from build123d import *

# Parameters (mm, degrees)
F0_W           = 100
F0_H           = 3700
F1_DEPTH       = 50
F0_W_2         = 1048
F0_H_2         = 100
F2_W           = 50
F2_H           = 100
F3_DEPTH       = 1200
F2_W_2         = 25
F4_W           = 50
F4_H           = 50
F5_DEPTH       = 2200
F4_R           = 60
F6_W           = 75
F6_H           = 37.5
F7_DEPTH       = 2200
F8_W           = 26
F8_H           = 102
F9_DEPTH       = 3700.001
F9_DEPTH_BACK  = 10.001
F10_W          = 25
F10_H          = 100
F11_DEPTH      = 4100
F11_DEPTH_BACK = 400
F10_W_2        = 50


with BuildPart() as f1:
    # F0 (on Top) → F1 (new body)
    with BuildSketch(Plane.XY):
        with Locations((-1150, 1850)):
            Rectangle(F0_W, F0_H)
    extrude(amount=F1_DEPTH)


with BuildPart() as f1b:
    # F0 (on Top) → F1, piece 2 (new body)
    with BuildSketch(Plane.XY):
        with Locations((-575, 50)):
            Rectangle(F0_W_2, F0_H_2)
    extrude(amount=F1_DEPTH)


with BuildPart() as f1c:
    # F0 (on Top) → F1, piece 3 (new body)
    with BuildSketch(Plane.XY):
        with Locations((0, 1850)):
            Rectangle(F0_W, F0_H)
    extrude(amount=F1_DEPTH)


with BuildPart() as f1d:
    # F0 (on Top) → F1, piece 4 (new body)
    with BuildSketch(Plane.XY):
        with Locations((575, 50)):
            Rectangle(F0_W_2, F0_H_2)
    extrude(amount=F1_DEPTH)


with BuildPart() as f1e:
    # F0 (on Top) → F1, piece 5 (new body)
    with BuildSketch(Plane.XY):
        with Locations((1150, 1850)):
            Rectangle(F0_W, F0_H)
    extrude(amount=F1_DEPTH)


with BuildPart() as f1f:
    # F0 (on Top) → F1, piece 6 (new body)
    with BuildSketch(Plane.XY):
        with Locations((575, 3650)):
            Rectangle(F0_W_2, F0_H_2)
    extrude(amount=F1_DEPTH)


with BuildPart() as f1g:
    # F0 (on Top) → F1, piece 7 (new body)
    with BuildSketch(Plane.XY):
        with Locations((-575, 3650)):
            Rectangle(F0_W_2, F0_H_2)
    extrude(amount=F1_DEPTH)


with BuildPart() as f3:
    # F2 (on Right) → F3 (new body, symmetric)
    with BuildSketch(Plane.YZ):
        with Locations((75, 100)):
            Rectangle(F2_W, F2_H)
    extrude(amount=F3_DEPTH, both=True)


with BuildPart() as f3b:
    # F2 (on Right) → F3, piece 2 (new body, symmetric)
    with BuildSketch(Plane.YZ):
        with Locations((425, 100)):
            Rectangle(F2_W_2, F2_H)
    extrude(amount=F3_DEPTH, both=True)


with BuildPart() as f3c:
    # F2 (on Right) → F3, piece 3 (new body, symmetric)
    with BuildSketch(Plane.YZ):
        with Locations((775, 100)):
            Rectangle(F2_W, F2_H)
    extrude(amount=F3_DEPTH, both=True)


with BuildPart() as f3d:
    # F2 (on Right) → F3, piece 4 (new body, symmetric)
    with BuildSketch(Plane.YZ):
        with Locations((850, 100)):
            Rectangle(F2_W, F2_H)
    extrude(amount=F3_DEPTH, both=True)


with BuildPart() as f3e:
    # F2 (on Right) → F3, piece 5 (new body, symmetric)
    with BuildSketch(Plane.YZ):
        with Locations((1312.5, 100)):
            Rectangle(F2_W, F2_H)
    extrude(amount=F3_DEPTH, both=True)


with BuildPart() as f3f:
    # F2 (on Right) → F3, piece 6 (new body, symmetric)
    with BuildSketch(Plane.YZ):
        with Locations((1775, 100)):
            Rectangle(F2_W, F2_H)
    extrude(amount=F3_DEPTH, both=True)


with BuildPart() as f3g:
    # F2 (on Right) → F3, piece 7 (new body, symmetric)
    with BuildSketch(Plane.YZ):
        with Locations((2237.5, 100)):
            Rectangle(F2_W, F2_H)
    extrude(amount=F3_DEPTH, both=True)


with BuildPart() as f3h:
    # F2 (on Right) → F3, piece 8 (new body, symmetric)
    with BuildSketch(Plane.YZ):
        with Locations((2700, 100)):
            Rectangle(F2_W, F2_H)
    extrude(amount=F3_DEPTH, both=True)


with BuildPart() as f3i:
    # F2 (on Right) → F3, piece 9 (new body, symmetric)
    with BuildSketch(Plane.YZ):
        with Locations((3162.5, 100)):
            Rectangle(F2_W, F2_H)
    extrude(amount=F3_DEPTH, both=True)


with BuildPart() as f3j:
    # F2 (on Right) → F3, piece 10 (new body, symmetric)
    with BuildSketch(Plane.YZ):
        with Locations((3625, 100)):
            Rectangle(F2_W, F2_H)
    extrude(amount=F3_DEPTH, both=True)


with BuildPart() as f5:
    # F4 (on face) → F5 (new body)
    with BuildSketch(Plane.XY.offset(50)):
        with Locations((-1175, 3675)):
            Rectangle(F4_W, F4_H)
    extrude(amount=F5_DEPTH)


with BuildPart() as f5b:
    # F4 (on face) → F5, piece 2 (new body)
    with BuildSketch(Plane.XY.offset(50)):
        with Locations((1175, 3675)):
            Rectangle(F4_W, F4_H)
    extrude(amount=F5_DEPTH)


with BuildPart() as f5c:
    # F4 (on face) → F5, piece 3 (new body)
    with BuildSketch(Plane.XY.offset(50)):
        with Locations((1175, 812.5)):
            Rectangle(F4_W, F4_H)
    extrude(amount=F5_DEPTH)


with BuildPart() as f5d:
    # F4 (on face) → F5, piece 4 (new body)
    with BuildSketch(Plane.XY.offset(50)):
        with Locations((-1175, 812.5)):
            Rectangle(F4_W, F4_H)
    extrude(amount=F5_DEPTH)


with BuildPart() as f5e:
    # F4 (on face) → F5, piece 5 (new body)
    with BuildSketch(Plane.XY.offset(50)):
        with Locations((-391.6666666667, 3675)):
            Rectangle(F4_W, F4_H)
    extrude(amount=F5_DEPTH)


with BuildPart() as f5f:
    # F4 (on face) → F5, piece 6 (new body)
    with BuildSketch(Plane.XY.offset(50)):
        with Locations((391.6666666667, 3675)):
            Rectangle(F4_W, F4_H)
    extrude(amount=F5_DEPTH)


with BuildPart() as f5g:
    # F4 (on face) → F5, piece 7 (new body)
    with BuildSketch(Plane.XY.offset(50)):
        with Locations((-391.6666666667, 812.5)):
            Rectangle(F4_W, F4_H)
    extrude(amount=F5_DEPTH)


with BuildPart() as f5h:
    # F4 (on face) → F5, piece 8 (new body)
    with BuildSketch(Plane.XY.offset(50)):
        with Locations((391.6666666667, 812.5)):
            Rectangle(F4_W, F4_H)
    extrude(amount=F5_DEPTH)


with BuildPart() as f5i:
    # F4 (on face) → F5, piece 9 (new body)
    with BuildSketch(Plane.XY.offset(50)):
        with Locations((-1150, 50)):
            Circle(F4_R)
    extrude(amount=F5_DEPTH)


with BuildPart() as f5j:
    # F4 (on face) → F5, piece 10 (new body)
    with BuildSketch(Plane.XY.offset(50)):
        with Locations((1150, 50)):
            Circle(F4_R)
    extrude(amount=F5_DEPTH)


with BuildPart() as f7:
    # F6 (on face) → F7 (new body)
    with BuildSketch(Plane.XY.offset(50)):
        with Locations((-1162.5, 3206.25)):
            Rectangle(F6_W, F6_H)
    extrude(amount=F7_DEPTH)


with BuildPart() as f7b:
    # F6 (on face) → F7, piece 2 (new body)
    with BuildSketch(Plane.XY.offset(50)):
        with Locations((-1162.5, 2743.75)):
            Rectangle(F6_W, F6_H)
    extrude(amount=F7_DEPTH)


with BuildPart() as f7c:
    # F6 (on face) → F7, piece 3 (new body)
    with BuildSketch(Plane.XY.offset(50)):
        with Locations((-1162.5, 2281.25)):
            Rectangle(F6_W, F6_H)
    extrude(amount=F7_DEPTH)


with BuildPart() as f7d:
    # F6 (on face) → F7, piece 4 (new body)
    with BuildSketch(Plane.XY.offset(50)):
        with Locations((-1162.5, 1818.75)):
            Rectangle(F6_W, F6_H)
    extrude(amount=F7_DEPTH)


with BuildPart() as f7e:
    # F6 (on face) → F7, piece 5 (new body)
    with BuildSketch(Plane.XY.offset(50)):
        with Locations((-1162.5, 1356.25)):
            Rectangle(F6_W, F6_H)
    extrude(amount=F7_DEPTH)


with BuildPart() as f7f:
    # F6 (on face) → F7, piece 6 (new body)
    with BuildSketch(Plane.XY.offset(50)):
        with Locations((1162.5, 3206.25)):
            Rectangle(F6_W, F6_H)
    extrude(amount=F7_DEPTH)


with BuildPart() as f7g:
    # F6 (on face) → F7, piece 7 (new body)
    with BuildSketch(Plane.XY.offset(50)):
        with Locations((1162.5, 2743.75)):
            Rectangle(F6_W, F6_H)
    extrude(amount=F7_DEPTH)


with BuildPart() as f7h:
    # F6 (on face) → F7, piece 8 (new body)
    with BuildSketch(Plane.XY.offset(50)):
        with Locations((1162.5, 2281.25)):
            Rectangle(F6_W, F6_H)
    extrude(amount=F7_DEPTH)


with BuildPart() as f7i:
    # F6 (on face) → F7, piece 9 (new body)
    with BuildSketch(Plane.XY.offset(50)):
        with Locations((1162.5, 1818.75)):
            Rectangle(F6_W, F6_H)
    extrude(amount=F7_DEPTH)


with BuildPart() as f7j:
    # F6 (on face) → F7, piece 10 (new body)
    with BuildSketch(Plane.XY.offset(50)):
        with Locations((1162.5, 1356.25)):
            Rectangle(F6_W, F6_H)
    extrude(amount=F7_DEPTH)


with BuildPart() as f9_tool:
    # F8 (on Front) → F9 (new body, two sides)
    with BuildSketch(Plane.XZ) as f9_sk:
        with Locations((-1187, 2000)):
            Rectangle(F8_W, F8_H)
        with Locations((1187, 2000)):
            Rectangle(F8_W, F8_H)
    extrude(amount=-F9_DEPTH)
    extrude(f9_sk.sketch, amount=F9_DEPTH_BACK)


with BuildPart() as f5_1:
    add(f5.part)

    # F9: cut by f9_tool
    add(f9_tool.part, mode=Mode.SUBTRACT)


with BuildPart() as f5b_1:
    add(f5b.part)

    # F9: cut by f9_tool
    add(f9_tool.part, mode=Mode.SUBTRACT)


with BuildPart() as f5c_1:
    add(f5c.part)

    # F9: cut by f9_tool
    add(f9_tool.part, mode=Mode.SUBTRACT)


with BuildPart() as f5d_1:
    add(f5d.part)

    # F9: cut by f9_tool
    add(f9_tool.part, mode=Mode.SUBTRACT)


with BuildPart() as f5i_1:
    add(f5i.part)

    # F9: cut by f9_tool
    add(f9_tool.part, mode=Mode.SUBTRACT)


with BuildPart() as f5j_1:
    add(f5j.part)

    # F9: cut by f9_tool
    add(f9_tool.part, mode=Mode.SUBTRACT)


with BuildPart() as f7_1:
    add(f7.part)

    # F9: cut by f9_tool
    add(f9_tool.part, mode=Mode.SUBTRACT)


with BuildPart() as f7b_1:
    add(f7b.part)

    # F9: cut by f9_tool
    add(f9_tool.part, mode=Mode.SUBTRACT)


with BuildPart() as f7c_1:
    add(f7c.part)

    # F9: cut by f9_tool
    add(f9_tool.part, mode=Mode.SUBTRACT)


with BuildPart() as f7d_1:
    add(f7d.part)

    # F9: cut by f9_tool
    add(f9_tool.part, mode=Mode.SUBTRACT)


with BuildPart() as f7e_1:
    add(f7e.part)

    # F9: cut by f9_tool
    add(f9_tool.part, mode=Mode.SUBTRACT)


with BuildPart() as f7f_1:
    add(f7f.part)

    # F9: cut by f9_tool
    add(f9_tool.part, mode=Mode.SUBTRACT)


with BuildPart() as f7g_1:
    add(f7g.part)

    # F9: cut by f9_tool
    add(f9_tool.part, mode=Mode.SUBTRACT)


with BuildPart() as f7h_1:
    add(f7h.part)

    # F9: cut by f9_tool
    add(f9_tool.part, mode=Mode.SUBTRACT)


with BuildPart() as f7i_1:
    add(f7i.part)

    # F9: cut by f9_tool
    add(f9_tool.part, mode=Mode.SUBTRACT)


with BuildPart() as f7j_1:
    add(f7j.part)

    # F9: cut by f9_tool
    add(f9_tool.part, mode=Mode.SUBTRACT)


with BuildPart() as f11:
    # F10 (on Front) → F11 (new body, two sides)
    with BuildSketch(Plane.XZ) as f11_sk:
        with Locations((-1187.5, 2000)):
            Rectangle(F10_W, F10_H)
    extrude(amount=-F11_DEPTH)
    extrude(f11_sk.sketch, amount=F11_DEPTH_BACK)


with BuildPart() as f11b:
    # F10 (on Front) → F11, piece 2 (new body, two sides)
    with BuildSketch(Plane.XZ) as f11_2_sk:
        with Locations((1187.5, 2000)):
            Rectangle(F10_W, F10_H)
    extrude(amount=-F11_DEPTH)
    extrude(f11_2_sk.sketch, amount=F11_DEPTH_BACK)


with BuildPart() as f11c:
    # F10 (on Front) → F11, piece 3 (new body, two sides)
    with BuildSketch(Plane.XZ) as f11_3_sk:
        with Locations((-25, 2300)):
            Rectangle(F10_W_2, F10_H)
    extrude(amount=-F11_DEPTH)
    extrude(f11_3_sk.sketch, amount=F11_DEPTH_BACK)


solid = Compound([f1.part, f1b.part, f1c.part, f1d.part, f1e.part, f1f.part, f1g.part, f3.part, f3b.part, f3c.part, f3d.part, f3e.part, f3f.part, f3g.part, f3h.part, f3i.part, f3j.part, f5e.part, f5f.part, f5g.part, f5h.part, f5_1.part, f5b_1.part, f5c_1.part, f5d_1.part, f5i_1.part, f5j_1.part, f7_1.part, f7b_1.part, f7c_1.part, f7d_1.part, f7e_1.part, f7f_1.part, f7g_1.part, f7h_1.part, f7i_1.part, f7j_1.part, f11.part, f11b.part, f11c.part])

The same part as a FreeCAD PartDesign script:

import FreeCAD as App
import Part
import Sketcher

V = App.Vector


def add_polygon(sketch, points):
    """Adds a closed chain of lines whose ends are joined by coincident constraints."""
    first, n = sketch.GeometryCount, len(points)
    for a, b in zip(points, points[1:] + points[:1]):
        sketch.addGeometry(Part.LineSegment(App.Vector(*a, 0), App.Vector(*b, 0)), False)
    for i in range(n):
        sketch.addConstraint(Sketcher.Constraint("Coincident", first + i, 2, first + (i + 1) % n, 1))

doc = App.newDocument("Part")
body = doc.addObject("PartDesign::Body", "Body")

# Sketch on XY plane
sketch1 = doc.addObject("Sketcher::SketchObject", "Sketch")
body.addObject(sketch1)
sketch1.AttachmentSupport = (doc.XY_Plane, [""])
sketch1.MapMode = "FlatFace"
add_polygon(sketch1, [(-1200, 3700), (-1200, 0), (-1100, 0), (-1100, 3700)])  # lines 0-3
sketch1.addConstraint([
    Sketcher.Constraint("Vertical", 0),
    Sketcher.Constraint("Horizontal", 1),
    Sketcher.Constraint("Vertical", 2),
    Sketcher.Constraint("Horizontal", 3),
    Sketcher.Constraint("PointOnObject", 0, 2, -1),
    Sketcher.Constraint("DistanceX", 1, 1, 1, 2, 100.0),
    Sketcher.Constraint("DistanceY", 0, 2, 0, 1, 3700.0),
    Sketcher.Constraint("DistanceX", 0, 2, -1, 1, 1200.0),
])
pad1 = doc.addObject("PartDesign::Pad", "Pad")
body.addObject(pad1)
pad1.Profile = sketch1
pad1.Length = 50
body2 = doc.addObject("PartDesign::Body", "Body001")

# Sketch on XY plane
sketch2 = doc.addObject("Sketcher::SketchObject", "Sketch001")
body2.addObject(sketch2)
sketch2.AttachmentSupport = (doc.getObject("XY_Plane001"), [""])
sketch2.MapMode = "FlatFace"
add_polygon(sketch2, [(-1099, 100), (-1099, 0), (-51, 0), (-51, 100)])  # lines 0-3
sketch2.addConstraint([
    Sketcher.Constraint("Vertical", 0),
    Sketcher.Constraint("Horizontal", 1),
    Sketcher.Constraint("Vertical", 2),
    Sketcher.Constraint("Horizontal", 3),
    Sketcher.Constraint("PointOnObject", 0, 2, -1),
    Sketcher.Constraint("DistanceX", 1, 1, 1, 2, 1048.0),
    Sketcher.Constraint("DistanceY", 0, 2, 0, 1, 100.0),
    Sketcher.Constraint("DistanceX", 0, 2, -1, 1, 1099.0),
])
pad2 = doc.addObject("PartDesign::Pad", "Pad001")
body2.addObject(pad2)
pad2.Profile = sketch2
pad2.Length = 50
body3 = doc.addObject("PartDesign::Body", "Body002")

# Sketch on XY plane
sketch3 = doc.addObject("Sketcher::SketchObject", "Sketch002")
body3.addObject(sketch3)
sketch3.AttachmentSupport = (doc.getObject("XY_Plane002"), [""])
sketch3.MapMode = "FlatFace"
add_polygon(sketch3, [(-50, 3700), (-50, 0), (50, 0), (50, 3700)])  # lines 0-3
sketch3.addConstraint([
    Sketcher.Constraint("Vertical", 0),
    Sketcher.Constraint("Horizontal", 1),
    Sketcher.Constraint("Vertical", 2),
    Sketcher.Constraint("Horizontal", 3),
    Sketcher.Constraint("Symmetric", 0, 2, 1, 2, -1, 1),
    Sketcher.Constraint("DistanceX", 1, 1, 1, 2, 100.0),
    Sketcher.Constraint("DistanceY", 0, 2, 0, 1, 3700.0),
])
pad3 = doc.addObject("PartDesign::Pad", "Pad002")
body3.addObject(pad3)
pad3.Profile = sketch3
pad3.Length = 50
body4 = doc.addObject("PartDesign::Body", "Body003")

# Sketch on XY plane
sketch4 = doc.addObject("Sketcher::SketchObject", "Sketch003")
body4.addObject(sketch4)
sketch4.AttachmentSupport = (doc.getObject("XY_Plane003"), [""])
sketch4.MapMode = "FlatFace"
add_polygon(sketch4, [(51, 100), (51, 0), (1099, 0), (1099, 100)])  # lines 0-3
sketch4.addConstraint([
    Sketcher.Constraint("Vertical", 0),
    Sketcher.Constraint("Horizontal", 1),
    Sketcher.Constraint("Vertical", 2),
    Sketcher.Constraint("Horizontal", 3),
    Sketcher.Constraint("PointOnObject", 0, 2, -1),
    Sketcher.Constraint("DistanceX", 1, 1, 1, 2, 1048.0),
    Sketcher.Constraint("DistanceY", 0, 2, 0, 1, 100.0),
    Sketcher.Constraint("DistanceX", -1, 1, 0, 2, 51.0),
])
pad4 = doc.addObject("PartDesign::Pad", "Pad003")
body4.addObject(pad4)
pad4.Profile = sketch4
pad4.Length = 50
body5 = doc.addObject("PartDesign::Body", "Body004")

# Sketch on XY plane
sketch5 = doc.addObject("Sketcher::SketchObject", "Sketch004")
body5.addObject(sketch5)
sketch5.AttachmentSupport = (doc.getObject("XY_Plane004"), [""])
sketch5.MapMode = "FlatFace"
add_polygon(sketch5, [(1100, 3700), (1100, 0), (1200, 0), (1200, 3700)])  # lines 0-3
sketch5.addConstraint([
    Sketcher.Constraint("Vertical", 0),
    Sketcher.Constraint("Horizontal", 1),
    Sketcher.Constraint("Vertical", 2),
    Sketcher.Constraint("Horizontal", 3),
    Sketcher.Constraint("PointOnObject", 0, 2, -1),
    Sketcher.Constraint("DistanceX", 1, 1, 1, 2, 100.0),
    Sketcher.Constraint("DistanceY", 0, 2, 0, 1, 3700.0),
    Sketcher.Constraint("DistanceX", -1, 1, 0, 2, 1100.0),
])
pad5 = doc.addObject("PartDesign::Pad", "Pad004")
body5.addObject(pad5)
pad5.Profile = sketch5
pad5.Length = 50
body6 = doc.addObject("PartDesign::Body", "Body005")

# Sketch on XY plane
sketch6 = doc.addObject("Sketcher::SketchObject", "Sketch005")
body6.addObject(sketch6)
sketch6.AttachmentSupport = (doc.getObject("XY_Plane005"), [""])
sketch6.MapMode = "FlatFace"
add_polygon(sketch6, [(51, 3700), (51, 3600), (1099, 3600), (1099, 3700)])  # lines 0-3
sketch6.addConstraint([
    Sketcher.Constraint("Vertical", 0),
    Sketcher.Constraint("Horizontal", 1),
    Sketcher.Constraint("Vertical", 2),
    Sketcher.Constraint("Horizontal", 3),
    Sketcher.Constraint("DistanceX", 1, 1, 1, 2, 1048.0),
    Sketcher.Constraint("DistanceY", 0, 2, 0, 1, 100.0),
    Sketcher.Constraint("DistanceX", -1, 1, 0, 2, 51.0),
    Sketcher.Constraint("DistanceY", -1, 1, 0, 2, 3600.0),
])
pad6 = doc.addObject("PartDesign::Pad", "Pad005")
body6.addObject(pad6)
pad6.Profile = sketch6
pad6.Length = 50
body7 = doc.addObject("PartDesign::Body", "Body006")

# Sketch on XY plane
sketch7 = doc.addObject("Sketcher::SketchObject", "Sketch006")
body7.addObject(sketch7)
sketch7.AttachmentSupport = (doc.getObject("XY_Plane006"), [""])
sketch7.MapMode = "FlatFace"
add_polygon(sketch7, [(-1099, 3700), (-1099, 3600), (-51, 3600), (-51, 3700)])  # lines 0-3
sketch7.addConstraint([
    Sketcher.Constraint("Vertical", 0),
    Sketcher.Constraint("Horizontal", 1),
    Sketcher.Constraint("Vertical", 2),
    Sketcher.Constraint("Horizontal", 3),
    Sketcher.Constraint("DistanceX", 1, 1, 1, 2, 1048.0),
    Sketcher.Constraint("DistanceY", 0, 2, 0, 1, 100.0),
    Sketcher.Constraint("DistanceX", 0, 2, -1, 1, 1099.0),
    Sketcher.Constraint("DistanceY", -1, 1, 0, 2, 3600.0),
])
pad7 = doc.addObject("PartDesign::Pad", "Pad006")
body7.addObject(pad7)
pad7.Profile = sketch7
pad7.Length = 50
body8 = doc.addObject("PartDesign::Body", "Body007")

# Sketch on YZ plane
sketch8 = doc.addObject("Sketcher::SketchObject", "Sketch007")
body8.addObject(sketch8)
sketch8.AttachmentSupport = (doc.getObject("YZ_Plane007"), [""])
sketch8.MapMode = "FlatFace"
add_polygon(sketch8, [(50, 150), (50, 50), (100, 50), (100, 150)])  # lines 0-3
sketch8.addConstraint([
    Sketcher.Constraint("Vertical", 0),
    Sketcher.Constraint("Horizontal", 1),
    Sketcher.Constraint("Vertical", 2),
    Sketcher.Constraint("Horizontal", 3),
    Sketcher.Constraint("DistanceX", 1, 1, 1, 2, 50.0),
    Sketcher.Constraint("DistanceY", 0, 2, 0, 1, 100.0),
    Sketcher.Constraint("DistanceX", -1, 1, 0, 2, 50.0),
    Sketcher.Constraint("DistanceY", -1, 1, 0, 2, 50.0),
])
pad8 = doc.addObject("PartDesign::Pad", "Pad007")
body8.addObject(pad8)
pad8.Profile = sketch8
pad8.Length = 2400
pad8.Midplane = True
body9 = doc.addObject("PartDesign::Body", "Body008")

# Sketch on YZ plane
sketch9 = doc.addObject("Sketcher::SketchObject", "Sketch008")
body9.addObject(sketch9)
sketch9.AttachmentSupport = (doc.getObject("YZ_Plane008"), [""])
sketch9.MapMode = "FlatFace"
add_polygon(sketch9, [(412, 150), (412, 50), (438, 50), (438, 150)])  # lines 0-3
sketch9.addConstraint([
    Sketcher.Constraint("Vertical", 0),
    Sketcher.Constraint("Horizontal", 1),
    Sketcher.Constraint("Vertical", 2),
    Sketcher.Constraint("Horizontal", 3),
    Sketcher.Constraint("DistanceX", 1, 1, 1, 2, 25.0),
    Sketcher.Constraint("DistanceY", 0, 2, 0, 1, 100.0),
    Sketcher.Constraint("DistanceY", -1, 1, 0, 2, 50.0),
    Sketcher.Constraint("DistanceX", -1, 1, 0, 2, 412.5),
])
pad9 = doc.addObject("PartDesign::Pad", "Pad008")
body9.addObject(pad9)
pad9.Profile = sketch9
pad9.Length = 2400
pad9.Midplane = True
body10 = doc.addObject("PartDesign::Body", "Body009")

# Sketch on YZ plane
sketch10 = doc.addObject("Sketcher::SketchObject", "Sketch009")
body10.addObject(sketch10)
sketch10.AttachmentSupport = (doc.getObject("YZ_Plane009"), [""])
sketch10.MapMode = "FlatFace"
add_polygon(sketch10, [(750, 150), (750, 50), (800, 50), (800, 150)])  # lines 0-3
sketch10.addConstraint([
    Sketcher.Constraint("Vertical", 0),
    Sketcher.Constraint("Horizontal", 1),
    Sketcher.Constraint("Vertical", 2),
    Sketcher.Constraint("Horizontal", 3),
    Sketcher.Constraint("DistanceX", 1, 1, 1, 2, 50.0),
    Sketcher.Constraint("DistanceY", 0, 2, 0, 1, 100.0),
    Sketcher.Constraint("DistanceX", -1, 1, 0, 2, 750.0),
    Sketcher.Constraint("DistanceY", -1, 1, 0, 2, 50.0),
])
pad10 = doc.addObject("PartDesign::Pad", "Pad009")
body10.addObject(pad10)
pad10.Profile = sketch10
pad10.Length = 2400
pad10.Midplane = True
body11 = doc.addObject("PartDesign::Body", "Body010")

# Sketch on YZ plane
sketch11 = doc.addObject("Sketcher::SketchObject", "Sketch010")
body11.addObject(sketch11)
sketch11.AttachmentSupport = (doc.getObject("YZ_Plane010"), [""])
sketch11.MapMode = "FlatFace"
add_polygon(sketch11, [(825, 150), (825, 50), (875, 50), (875, 150)])  # lines 0-3
sketch11.addConstraint([
    Sketcher.Constraint("Vertical", 0),
    Sketcher.Constraint("Horizontal", 1),
    Sketcher.Constraint("Vertical", 2),
    Sketcher.Constraint("Horizontal", 3),
    Sketcher.Constraint("DistanceX", 1, 1, 1, 2, 50.0),
    Sketcher.Constraint("DistanceY", 0, 2, 0, 1, 100.0),
    Sketcher.Constraint("DistanceX", -1, 1, 0, 2, 825.0),
    Sketcher.Constraint("DistanceY", -1, 1, 0, 2, 50.0),
])
pad11 = doc.addObject("PartDesign::Pad", "Pad010")
body11.addObject(pad11)
pad11.Profile = sketch11
pad11.Length = 2400
pad11.Midplane = True
body12 = doc.addObject("PartDesign::Body", "Body011")

# Sketch on YZ plane
sketch12 = doc.addObject("Sketcher::SketchObject", "Sketch011")
body12.addObject(sketch12)
sketch12.AttachmentSupport = (doc.getObject("YZ_Plane011"), [""])
sketch12.MapMode = "FlatFace"
add_polygon(sketch12, [(1288, 150), (1288, 50), (1338, 50), (1338, 150)])  # lines 0-3
sketch12.addConstraint([
    Sketcher.Constraint("Vertical", 0),
    Sketcher.Constraint("Horizontal", 1),
    Sketcher.Constraint("Vertical", 2),
    Sketcher.Constraint("Horizontal", 3),
    Sketcher.Constraint("DistanceX", 1, 1, 1, 2, 50.0),
    Sketcher.Constraint("DistanceY", 0, 2, 0, 1, 100.0),
    Sketcher.Constraint("DistanceY", -1, 1, 0, 2, 50.0),
    Sketcher.Constraint("DistanceX", -1, 1, 0, 2, 1287.5),
])
pad12 = doc.addObject("PartDesign::Pad", "Pad011")
body12.addObject(pad12)
pad12.Profile = sketch12
pad12.Length = 2400
pad12.Midplane = True
body13 = doc.addObject("PartDesign::Body", "Body012")

# Sketch on YZ plane
sketch13 = doc.addObject("Sketcher::SketchObject", "Sketch012")
body13.addObject(sketch13)
sketch13.AttachmentSupport = (doc.getObject("YZ_Plane012"), [""])
sketch13.MapMode = "FlatFace"
add_polygon(sketch13, [(1750, 150), (1750, 50), (1800, 50), (1800, 150)])  # lines 0-3
sketch13.addConstraint([
    Sketcher.Constraint("Vertical", 0),
    Sketcher.Constraint("Horizontal", 1),
    Sketcher.Constraint("Vertical", 2),
    Sketcher.Constraint("Horizontal", 3),
    Sketcher.Constraint("DistanceX", 1, 1, 1, 2, 50.0),
    Sketcher.Constraint("DistanceY", 0, 2, 0, 1, 100.0),
    Sketcher.Constraint("DistanceX", -1, 1, 0, 2, 1750.0),
    Sketcher.Constraint("DistanceY", -1, 1, 0, 2, 50.0),
])
pad13 = doc.addObject("PartDesign::Pad", "Pad012")
body13.addObject(pad13)
pad13.Profile = sketch13
pad13.Length = 2400
pad13.Midplane = True
body14 = doc.addObject("PartDesign::Body", "Body013")

# Sketch on YZ plane
sketch14 = doc.addObject("Sketcher::SketchObject", "Sketch013")
body14.addObject(sketch14)
sketch14.AttachmentSupport = (doc.getObject("YZ_Plane013"), [""])
sketch14.MapMode = "FlatFace"
add_polygon(sketch14, [(2212, 150), (2212, 50), (2262, 50), (2262, 150)])  # lines 0-3
sketch14.addConstraint([
    Sketcher.Constraint("Vertical", 0),
    Sketcher.Constraint("Horizontal", 1),
    Sketcher.Constraint("Vertical", 2),
    Sketcher.Constraint("Horizontal", 3),
    Sketcher.Constraint("DistanceX", 1, 1, 1, 2, 50.0),
    Sketcher.Constraint("DistanceY", 0, 2, 0, 1, 100.0),
    Sketcher.Constraint("DistanceY", -1, 1, 0, 2, 50.0),
    Sketcher.Constraint("DistanceX", -1, 1, 0, 2, 2212.5),
])
pad14 = doc.addObject("PartDesign::Pad", "Pad013")
body14.addObject(pad14)
pad14.Profile = sketch14
pad14.Length = 2400
pad14.Midplane = True
body15 = doc.addObject("PartDesign::Body", "Body014")

# Sketch on YZ plane
sketch15 = doc.addObject("Sketcher::SketchObject", "Sketch014")
body15.addObject(sketch15)
sketch15.AttachmentSupport = (doc.getObject("YZ_Plane014"), [""])
sketch15.MapMode = "FlatFace"
add_polygon(sketch15, [(2675, 150), (2675, 50), (2725, 50), (2725, 150)])  # lines 0-3
sketch15.addConstraint([
    Sketcher.Constraint("Vertical", 0),
    Sketcher.Constraint("Horizontal", 1),
    Sketcher.Constraint("Vertical", 2),
    Sketcher.Constraint("Horizontal", 3),
    Sketcher.Constraint("DistanceX", 1, 1, 1, 2, 50.0),
    Sketcher.Constraint("DistanceY", 0, 2, 0, 1, 100.0),
    Sketcher.Constraint("DistanceX", -1, 1, 0, 2, 2675.0),
    Sketcher.Constraint("DistanceY", -1, 1, 0, 2, 50.0),
])
pad15 = doc.addObject("PartDesign::Pad", "Pad014")
body15.addObject(pad15)
pad15.Profile = sketch15
pad15.Length = 2400
pad15.Midplane = True
body16 = doc.addObject("PartDesign::Body", "Body015")

# Sketch on YZ plane
sketch16 = doc.addObject("Sketcher::SketchObject", "Sketch015")
body16.addObject(sketch16)
sketch16.AttachmentSupport = (doc.getObject("YZ_Plane015"), [""])
sketch16.MapMode = "FlatFace"
add_polygon(sketch16, [(3138, 150), (3138, 50), (3188, 50), (3188, 150)])  # lines 0-3
sketch16.addConstraint([
    Sketcher.Constraint("Vertical", 0),
    Sketcher.Constraint("Horizontal", 1),
    Sketcher.Constraint("Vertical", 2),
    Sketcher.Constraint("Horizontal", 3),
    Sketcher.Constraint("DistanceX", 1, 1, 1, 2, 50.0),
    Sketcher.Constraint("DistanceY", 0, 2, 0, 1, 100.0),
    Sketcher.Constraint("DistanceY", -1, 1, 0, 2, 50.0),
    Sketcher.Constraint("DistanceX", -1, 1, 0, 2, 3137.5),
])
pad16 = doc.addObject("PartDesign::Pad", "Pad015")
body16.addObject(pad16)
pad16.Profile = sketch16
pad16.Length = 2400
pad16.Midplane = True
body17 = doc.addObject("PartDesign::Body", "Body016")

# Sketch on YZ plane
sketch17 = doc.addObject("Sketcher::SketchObject", "Sketch016")
body17.addObject(sketch17)
sketch17.AttachmentSupport = (doc.getObject("YZ_Plane016"), [""])
sketch17.MapMode = "FlatFace"
add_polygon(sketch17, [(3600, 150), (3600, 50), (3650, 50), (3650, 150)])  # lines 0-3
sketch17.addConstraint([
    Sketcher.Constraint("Vertical", 0),
    Sketcher.Constraint("Horizontal", 1),
    Sketcher.Constraint("Vertical", 2),
    Sketcher.Constraint("Horizontal", 3),
    Sketcher.Constraint("DistanceX", 1, 1, 1, 2, 50.0),
    Sketcher.Constraint("DistanceY", 0, 2, 0, 1, 100.0),
    Sketcher.Constraint("DistanceX", -1, 1, 0, 2, 3600.0),
    Sketcher.Constraint("DistanceY", -1, 1, 0, 2, 50.0),
])
pad17 = doc.addObject("PartDesign::Pad", "Pad016")
body17.addObject(pad17)
pad17.Profile = sketch17
pad17.Length = 2400
pad17.Midplane = True
body18 = doc.addObject("PartDesign::Body", "Body017")

# Sketch on XY plane
sketch18 = doc.addObject("Sketcher::SketchObject", "Sketch017")
body18.addObject(sketch18)
sketch18.AttachmentSupport = (doc.getObject("XY_Plane017"), [""])
sketch18.MapMode = "FlatFace"
sketch18.AttachmentOffset = App.Placement(V(0, 0, 50), App.Rotation())
add_polygon(sketch18, [(-1200, 3700), (-1200, 3650), (-1150, 3650), (-1150, 3700)])  # lines 0-3
sketch18.addConstraint([
    Sketcher.Constraint("Vertical", 0),
    Sketcher.Constraint("Horizontal", 1),
    Sketcher.Constraint("Vertical", 2),
    Sketcher.Constraint("Horizontal", 3),
    Sketcher.Constraint("Equal", 3, 0),
    Sketcher.Constraint("DistanceX", 1, 1, 1, 2, 50.0),
    Sketcher.Constraint("DistanceX", 0, 2, -1, 1, 1200.0),
    Sketcher.Constraint("DistanceY", -1, 1, 0, 2, 3650.0),
])
pad18 = doc.addObject("PartDesign::Pad", "Pad017")
body18.addObject(pad18)
pad18.Profile = sketch18
pad18.Length = 2200
body19 = doc.addObject("PartDesign::Body", "Body018")

# Sketch on XY plane
sketch19 = doc.addObject("Sketcher::SketchObject", "Sketch018")
body19.addObject(sketch19)
sketch19.AttachmentSupport = (doc.getObject("XY_Plane018"), [""])
sketch19.MapMode = "FlatFace"
sketch19.AttachmentOffset = App.Placement(V(0, 0, 50), App.Rotation())
add_polygon(sketch19, [(1150, 3700), (1150, 3650), (1200, 3650), (1200, 3700)])  # lines 0-3
sketch19.addConstraint([
    Sketcher.Constraint("Vertical", 0),
    Sketcher.Constraint("Horizontal", 1),
    Sketcher.Constraint("Vertical", 2),
    Sketcher.Constraint("Horizontal", 3),
    Sketcher.Constraint("Equal", 3, 0),
    Sketcher.Constraint("DistanceX", 1, 1, 1, 2, 50.0),
    Sketcher.Constraint("DistanceX", -1, 1, 0, 2, 1150.0),
    Sketcher.Constraint("DistanceY", -1, 1, 0, 2, 3650.0),
])
pad19 = doc.addObject("PartDesign::Pad", "Pad018")
body19.addObject(pad19)
pad19.Profile = sketch19
pad19.Length = 2200
body20 = doc.addObject("PartDesign::Body", "Body019")

# Sketch on XY plane
sketch20 = doc.addObject("Sketcher::SketchObject", "Sketch019")
body20.addObject(sketch20)
sketch20.AttachmentSupport = (doc.getObject("XY_Plane019"), [""])
sketch20.MapMode = "FlatFace"
sketch20.AttachmentOffset = App.Placement(V(0, 0, 50), App.Rotation())
add_polygon(sketch20, [(1150, 838), (1150, 788), (1200, 788), (1200, 838)])  # lines 0-3
sketch20.addConstraint([
    Sketcher.Constraint("Vertical", 0),
    Sketcher.Constraint("Horizontal", 1),
    Sketcher.Constraint("Vertical", 2),
    Sketcher.Constraint("Horizontal", 3),
    Sketcher.Constraint("Equal", 3, 0),
    Sketcher.Constraint("DistanceX", 1, 1, 1, 2, 50.0),
    Sketcher.Constraint("DistanceX", -1, 1, 0, 2, 1150.0),
    Sketcher.Constraint("DistanceY", -1, 1, 0, 2, 787.5),
])
pad20 = doc.addObject("PartDesign::Pad", "Pad019")
body20.addObject(pad20)
pad20.Profile = sketch20
pad20.Length = 2200
body21 = doc.addObject("PartDesign::Body", "Body020")

# Sketch on XY plane
sketch21 = doc.addObject("Sketcher::SketchObject", "Sketch020")
body21.addObject(sketch21)
sketch21.AttachmentSupport = (doc.getObject("XY_Plane020"), [""])
sketch21.MapMode = "FlatFace"
sketch21.AttachmentOffset = App.Placement(V(0, 0, 50), App.Rotation())
add_polygon(sketch21, [(-1200, 838), (-1200, 788), (-1150, 788), (-1150, 838)])  # lines 0-3
sketch21.addConstraint([
    Sketcher.Constraint("Vertical", 0),
    Sketcher.Constraint("Horizontal", 1),
    Sketcher.Constraint("Vertical", 2),
    Sketcher.Constraint("Horizontal", 3),
    Sketcher.Constraint("Equal", 3, 0),
    Sketcher.Constraint("DistanceX", 1, 1, 1, 2, 50.0),
    Sketcher.Constraint("DistanceX", 0, 2, -1, 1, 1200.0),
    Sketcher.Constraint("DistanceY", -1, 1, 0, 2, 787.5),
])
pad21 = doc.addObject("PartDesign::Pad", "Pad020")
body21.addObject(pad21)
pad21.Profile = sketch21
pad21.Length = 2200
body22 = doc.addObject("PartDesign::Body", "Body021")

# Sketch on XY plane
sketch22 = doc.addObject("Sketcher::SketchObject", "Sketch021")
body22.addObject(sketch22)
sketch22.AttachmentSupport = (doc.getObject("XY_Plane021"), [""])
sketch22.MapMode = "FlatFace"
sketch22.AttachmentOffset = App.Placement(V(0, 0, 50), App.Rotation())
add_polygon(sketch22, [(-417, 3700), (-417, 3650), (-367, 3650), (-367, 3700)])  # lines 0-3
sketch22.addConstraint([
    Sketcher.Constraint("Vertical", 0),
    Sketcher.Constraint("Horizontal", 1),
    Sketcher.Constraint("Vertical", 2),
    Sketcher.Constraint("Horizontal", 3),
    Sketcher.Constraint("Equal", 3, 0),
    Sketcher.Constraint("DistanceX", 1, 1, 1, 2, 50.0),
    Sketcher.Constraint("DistanceY", -1, 1, 0, 2, 3650.0),
    Sketcher.Constraint("DistanceX", 0, 2, -1, 1, 416.666667),
])
pad22 = doc.addObject("PartDesign::Pad", "Pad021")
body22.addObject(pad22)
pad22.Profile = sketch22
pad22.Length = 2200
body23 = doc.addObject("PartDesign::Body", "Body022")

# Sketch on XY plane
sketch23 = doc.addObject("Sketcher::SketchObject", "Sketch022")
body23.addObject(sketch23)
sketch23.AttachmentSupport = (doc.getObject("XY_Plane022"), [""])
sketch23.MapMode = "FlatFace"
sketch23.AttachmentOffset = App.Placement(V(0, 0, 50), App.Rotation())
add_polygon(sketch23, [(367, 3700), (367, 3650), (417, 3650), (417, 3700)])  # lines 0-3
sketch23.addConstraint([
    Sketcher.Constraint("Vertical", 0),
    Sketcher.Constraint("Horizontal", 1),
    Sketcher.Constraint("Vertical", 2),
    Sketcher.Constraint("Horizontal", 3),
    Sketcher.Constraint("Equal", 3, 0),
    Sketcher.Constraint("DistanceX", 1, 1, 1, 2, 50.0),
    Sketcher.Constraint("DistanceY", -1, 1, 0, 2, 3650.0),
    Sketcher.Constraint("DistanceX", -1, 1, 0, 2, 366.666667),
])
pad23 = doc.addObject("PartDesign::Pad", "Pad022")
body23.addObject(pad23)
pad23.Profile = sketch23
pad23.Length = 2200
body24 = doc.addObject("PartDesign::Body", "Body023")

# Sketch on XY plane
sketch24 = doc.addObject("Sketcher::SketchObject", "Sketch023")
body24.addObject(sketch24)
sketch24.AttachmentSupport = (doc.getObject("XY_Plane023"), [""])
sketch24.MapMode = "FlatFace"
sketch24.AttachmentOffset = App.Placement(V(0, 0, 50), App.Rotation())
add_polygon(sketch24, [(-417, 838), (-417, 788), (-367, 788), (-367, 838)])  # lines 0-3
sketch24.addConstraint([
    Sketcher.Constraint("Vertical", 0),
    Sketcher.Constraint("Horizontal", 1),
    Sketcher.Constraint("Vertical", 2),
    Sketcher.Constraint("Horizontal", 3),
    Sketcher.Constraint("Equal", 3, 0),
    Sketcher.Constraint("DistanceX", 1, 1, 1, 2, 50.0),
    Sketcher.Constraint("DistanceY", -1, 1, 0, 2, 787.5),
    Sketcher.Constraint("DistanceX", 0, 2, -1, 1, 416.666667),
])
pad24 = doc.addObject("PartDesign::Pad", "Pad023")
body24.addObject(pad24)
pad24.Profile = sketch24
pad24.Length = 2200
body25 = doc.addObject("PartDesign::Body", "Body024")

# Sketch on XY plane
sketch25 = doc.addObject("Sketcher::SketchObject", "Sketch024")
body25.addObject(sketch25)
sketch25.AttachmentSupport = (doc.getObject("XY_Plane024"), [""])
sketch25.MapMode = "FlatFace"
sketch25.AttachmentOffset = App.Placement(V(0, 0, 50), App.Rotation())
add_polygon(sketch25, [(367, 838), (367, 788), (417, 788), (417, 838)])  # lines 0-3
sketch25.addConstraint([
    Sketcher.Constraint("Vertical", 0),
    Sketcher.Constraint("Horizontal", 1),
    Sketcher.Constraint("Vertical", 2),
    Sketcher.Constraint("Horizontal", 3),
    Sketcher.Constraint("Equal", 3, 0),
    Sketcher.Constraint("DistanceX", 1, 1, 1, 2, 50.0),
    Sketcher.Constraint("DistanceY", -1, 1, 0, 2, 787.5),
    Sketcher.Constraint("DistanceX", -1, 1, 0, 2, 366.666667),
])
pad25 = doc.addObject("PartDesign::Pad", "Pad024")
body25.addObject(pad25)
pad25.Profile = sketch25
pad25.Length = 2200
body26 = doc.addObject("PartDesign::Body", "Body025")

# Sketch on XY plane
sketch26 = doc.addObject("Sketcher::SketchObject", "Sketch025")
body26.addObject(sketch26)
sketch26.AttachmentSupport = (doc.getObject("XY_Plane025"), [""])
sketch26.MapMode = "FlatFace"
sketch26.AttachmentOffset = App.Placement(V(0, 0, 50), App.Rotation())
sketch26.addGeometry(Part.Circle(V(-1150, 50, 0), V(0, 0, 1), 60), False)
sketch26.addConstraint([
    Sketcher.Constraint("Diameter", 0, 120.0),
    Sketcher.Constraint("DistanceX", 0, 3, -1, 1, 1150.0),
    Sketcher.Constraint("DistanceY", -1, 1, 0, 3, 50.0),
])
pad26 = doc.addObject("PartDesign::Pad", "Pad025")
body26.addObject(pad26)
pad26.Profile = sketch26
pad26.Length = 2200
body27 = doc.addObject("PartDesign::Body", "Body026")

# Sketch on XY plane
sketch27 = doc.addObject("Sketcher::SketchObject", "Sketch026")
body27.addObject(sketch27)
sketch27.AttachmentSupport = (doc.getObject("XY_Plane026"), [""])
sketch27.MapMode = "FlatFace"
sketch27.AttachmentOffset = App.Placement(V(0, 0, 50), App.Rotation())
sketch27.addGeometry(Part.Circle(V(1150, 50, 0), V(0, 0, 1), 60), False)
sketch27.addConstraint([
    Sketcher.Constraint("Diameter", 0, 120.0),
    Sketcher.Constraint("DistanceX", -1, 1, 0, 3, 1150.0),
    Sketcher.Constraint("DistanceY", -1, 1, 0, 3, 50.0),
])
pad27 = doc.addObject("PartDesign::Pad", "Pad026")
body27.addObject(pad27)
pad27.Profile = sketch27
pad27.Length = 2200
body28 = doc.addObject("PartDesign::Body", "Body027")

# Sketch on XY plane
sketch28 = doc.addObject("Sketcher::SketchObject", "Sketch027")
body28.addObject(sketch28)
sketch28.AttachmentSupport = (doc.getObject("XY_Plane027"), [""])
sketch28.MapMode = "FlatFace"
sketch28.AttachmentOffset = App.Placement(V(0, 0, 50), App.Rotation())
add_polygon(sketch28, [(-1200, 3225), (-1200, 3188), (-1125, 3188), (-1125, 3225)])  # lines 0-3
sketch28.addConstraint([
    Sketcher.Constraint("Vertical", 0),
    Sketcher.Constraint("Horizontal", 1),
    Sketcher.Constraint("Vertical", 2),
    Sketcher.Constraint("Horizontal", 3),
    Sketcher.Constraint("DistanceX", 1, 1, 1, 2, 75.0),
    Sketcher.Constraint("DistanceY", 0, 2, 0, 1, 37.5),
    Sketcher.Constraint("DistanceX", 0, 2, -1, 1, 1200.0),
    Sketcher.Constraint("DistanceY", -1, 1, 2, 2, 3225.0),
])
pad28 = doc.addObject("PartDesign::Pad", "Pad027")
body28.addObject(pad28)
pad28.Profile = sketch28
pad28.Length = 2200
body29 = doc.addObject("PartDesign::Body", "Body028")

# Sketch on XY plane
sketch29 = doc.addObject("Sketcher::SketchObject", "Sketch028")
body29.addObject(sketch29)
sketch29.AttachmentSupport = (doc.getObject("XY_Plane028"), [""])
sketch29.MapMode = "FlatFace"
sketch29.AttachmentOffset = App.Placement(V(0, 0, 50), App.Rotation())
add_polygon(sketch29, [(-1200, 2762), (-1200, 2725), (-1125, 2725), (-1125, 2762)])  # lines 0-3
sketch29.addConstraint([
    Sketcher.Constraint("Vertical", 0),
    Sketcher.Constraint("Horizontal", 1),
    Sketcher.Constraint("Vertical", 2),
    Sketcher.Constraint("Horizontal", 3),
    Sketcher.Constraint("DistanceX", 1, 1, 1, 2, 75.0),
    Sketcher.Constraint("DistanceY", 0, 2, 0, 1, 37.5),
    Sketcher.Constraint("DistanceX", 0, 2, -1, 1, 1200.0),
    Sketcher.Constraint("DistanceY", -1, 1, 0, 2, 2725.0),
])
pad29 = doc.addObject("PartDesign::Pad", "Pad028")
body29.addObject(pad29)
pad29.Profile = sketch29
pad29.Length = 2200
body30 = doc.addObject("PartDesign::Body", "Body029")

# Sketch on XY plane
sketch30 = doc.addObject("Sketcher::SketchObject", "Sketch029")
body30.addObject(sketch30)
sketch30.AttachmentSupport = (doc.getObject("XY_Plane029"), [""])
sketch30.MapMode = "FlatFace"
sketch30.AttachmentOffset = App.Placement(V(0, 0, 50), App.Rotation())
add_polygon(sketch30, [(-1200, 2300), (-1200, 2262), (-1125, 2262), (-1125, 2300)])  # lines 0-3
sketch30.addConstraint([
    Sketcher.Constraint("Vertical", 0),
    Sketcher.Constraint("Horizontal", 1),
    Sketcher.Constraint("Vertical", 2),
    Sketcher.Constraint("Horizontal", 3),
    Sketcher.Constraint("DistanceX", 1, 1, 1, 2, 75.0),
    Sketcher.Constraint("DistanceY", 0, 2, 0, 1, 37.5),
    Sketcher.Constraint("DistanceX", 0, 2, -1, 1, 1200.0),
    Sketcher.Constraint("DistanceY", -1, 1, 2, 2, 2300.0),
])
pad30 = doc.addObject("PartDesign::Pad", "Pad029")
body30.addObject(pad30)
pad30.Profile = sketch30
pad30.Length = 2200
body31 = doc.addObject("PartDesign::Body", "Body030")

# Sketch on XY plane
sketch31 = doc.addObject("Sketcher::SketchObject", "Sketch030")
body31.addObject(sketch31)
sketch31.AttachmentSupport = (doc.getObject("XY_Plane030"), [""])
sketch31.MapMode = "FlatFace"
sketch31.AttachmentOffset = App.Placement(V(0, 0, 50), App.Rotation())
add_polygon(sketch31, [(-1200, 1838), (-1200, 1800), (-1125, 1800), (-1125, 1838)])  # lines 0-3
sketch31.addConstraint([
    Sketcher.Constraint("Vertical", 0),
    Sketcher.Constraint("Horizontal", 1),
    Sketcher.Constraint("Vertical", 2),
    Sketcher.Constraint("Horizontal", 3),
    Sketcher.Constraint("DistanceX", 1, 1, 1, 2, 75.0),
    Sketcher.Constraint("DistanceY", 0, 2, 0, 1, 37.5),
    Sketcher.Constraint("DistanceX", 0, 2, -1, 1, 1200.0),
    Sketcher.Constraint("DistanceY", -1, 1, 0, 2, 1800.0),
])
pad31 = doc.addObject("PartDesign::Pad", "Pad030")
body31.addObject(pad31)
pad31.Profile = sketch31
pad31.Length = 2200
body32 = doc.addObject("PartDesign::Body", "Body031")

# Sketch on XY plane
sketch32 = doc.addObject("Sketcher::SketchObject", "Sketch031")
body32.addObject(sketch32)
sketch32.AttachmentSupport = (doc.getObject("XY_Plane031"), [""])
sketch32.MapMode = "FlatFace"
sketch32.AttachmentOffset = App.Placement(V(0, 0, 50), App.Rotation())
add_polygon(sketch32, [(-1200, 1375), (-1200, 1338), (-1125, 1338), (-1125, 1375)])  # lines 0-3
sketch32.addConstraint([
    Sketcher.Constraint("Vertical", 0),
    Sketcher.Constraint("Horizontal", 1),
    Sketcher.Constraint("Vertical", 2),
    Sketcher.Constraint("Horizontal", 3),
    Sketcher.Constraint("DistanceX", 1, 1, 1, 2, 75.0),
    Sketcher.Constraint("DistanceY", 0, 2, 0, 1, 37.5),
    Sketcher.Constraint("DistanceX", 0, 2, -1, 1, 1200.0),
    Sketcher.Constraint("DistanceY", -1, 1, 2, 2, 1375.0),
])
pad32 = doc.addObject("PartDesign::Pad", "Pad031")
body32.addObject(pad32)
pad32.Profile = sketch32
pad32.Length = 2200
body33 = doc.addObject("PartDesign::Body", "Body032")

# Sketch on XY plane
sketch33 = doc.addObject("Sketcher::SketchObject", "Sketch032")
body33.addObject(sketch33)
sketch33.AttachmentSupport = (doc.getObject("XY_Plane032"), [""])
sketch33.MapMode = "FlatFace"
sketch33.AttachmentOffset = App.Placement(V(0, 0, 50), App.Rotation())
add_polygon(sketch33, [(1125, 3225), (1125, 3188), (1200, 3188), (1200, 3225)])  # lines 0-3
sketch33.addConstraint([
    Sketcher.Constraint("Vertical", 0),
    Sketcher.Constraint("Horizontal", 1),
    Sketcher.Constraint("Vertical", 2),
    Sketcher.Constraint("Horizontal", 3),
    Sketcher.Constraint("DistanceX", 1, 1, 1, 2, 75.0),
    Sketcher.Constraint("DistanceY", 0, 2, 0, 1, 37.5),
    Sketcher.Constraint("DistanceX", -1, 1, 0, 2, 1125.0),
    Sketcher.Constraint("DistanceY", -1, 1, 2, 2, 3225.0),
])
pad33 = doc.addObject("PartDesign::Pad", "Pad032")
body33.addObject(pad33)
pad33.Profile = sketch33
pad33.Length = 2200
body34 = doc.addObject("PartDesign::Body", "Body033")

# Sketch on XY plane
sketch34 = doc.addObject("Sketcher::SketchObject", "Sketch033")
body34.addObject(sketch34)
sketch34.AttachmentSupport = (doc.getObject("XY_Plane033"), [""])
sketch34.MapMode = "FlatFace"
sketch34.AttachmentOffset = App.Placement(V(0, 0, 50), App.Rotation())
add_polygon(sketch34, [(1125, 2762), (1125, 2725), (1200, 2725), (1200, 2762)])  # lines 0-3
sketch34.addConstraint([
    Sketcher.Constraint("Vertical", 0),
    Sketcher.Constraint("Horizontal", 1),
    Sketcher.Constraint("Vertical", 2),
    Sketcher.Constraint("Horizontal", 3),
    Sketcher.Constraint("DistanceX", 1, 1, 1, 2, 75.0),
    Sketcher.Constraint("DistanceY", 0, 2, 0, 1, 37.5),
    Sketcher.Constraint("DistanceX", -1, 1, 0, 2, 1125.0),
    Sketcher.Constraint("DistanceY", -1, 1, 0, 2, 2725.0),
])
pad34 = doc.addObject("PartDesign::Pad", "Pad033")
body34.addObject(pad34)
pad34.Profile = sketch34
pad34.Length = 2200
body35 = doc.addObject("PartDesign::Body", "Body034")

# Sketch on XY plane
sketch35 = doc.addObject("Sketcher::SketchObject", "Sketch034")
body35.addObject(sketch35)
sketch35.AttachmentSupport = (doc.getObject("XY_Plane034"), [""])
sketch35.MapMode = "FlatFace"
sketch35.AttachmentOffset = App.Placement(V(0, 0, 50), App.Rotation())
add_polygon(sketch35, [(1125, 2300), (1125, 2262), (1200, 2262), (1200, 2300)])  # lines 0-3
sketch35.addConstraint([
    Sketcher.Constraint("Vertical", 0),
    Sketcher.Constraint("Horizontal", 1),
    Sketcher.Constraint("Vertical", 2),
    Sketcher.Constraint("Horizontal", 3),
    Sketcher.Constraint("DistanceX", 1, 1, 1, 2, 75.0),
    Sketcher.Constraint("DistanceY", 0, 2, 0, 1, 37.5),
    Sketcher.Constraint("DistanceX", -1, 1, 0, 2, 1125.0),
    Sketcher.Constraint("DistanceY", -1, 1, 2, 2, 2300.0),
])
pad35 = doc.addObject("PartDesign::Pad", "Pad034")
body35.addObject(pad35)
pad35.Profile = sketch35
pad35.Length = 2200
body36 = doc.addObject("PartDesign::Body", "Body035")

# Sketch on XY plane
sketch36 = doc.addObject("Sketcher::SketchObject", "Sketch035")
body36.addObject(sketch36)
sketch36.AttachmentSupport = (doc.getObject("XY_Plane035"), [""])
sketch36.MapMode = "FlatFace"
sketch36.AttachmentOffset = App.Placement(V(0, 0, 50), App.Rotation())
add_polygon(sketch36, [(1125, 1838), (1125, 1800), (1200, 1800), (1200, 1838)])  # lines 0-3
sketch36.addConstraint([
    Sketcher.Constraint("Vertical", 0),
    Sketcher.Constraint("Horizontal", 1),
    Sketcher.Constraint("Vertical", 2),
    Sketcher.Constraint("Horizontal", 3),
    Sketcher.Constraint("DistanceX", 1, 1, 1, 2, 75.0),
    Sketcher.Constraint("DistanceY", 0, 2, 0, 1, 37.5),
    Sketcher.Constraint("DistanceX", -1, 1, 0, 2, 1125.0),
    Sketcher.Constraint("DistanceY", -1, 1, 0, 2, 1800.0),
])
pad36 = doc.addObject("PartDesign::Pad", "Pad035")
body36.addObject(pad36)
pad36.Profile = sketch36
pad36.Length = 2200
body37 = doc.addObject("PartDesign::Body", "Body036")

# Sketch on XY plane
sketch37 = doc.addObject("Sketcher::SketchObject", "Sketch036")
body37.addObject(sketch37)
sketch37.AttachmentSupport = (doc.getObject("XY_Plane036"), [""])
sketch37.MapMode = "FlatFace"
sketch37.AttachmentOffset = App.Placement(V(0, 0, 50), App.Rotation())
add_polygon(sketch37, [(1125, 1375), (1125, 1338), (1200, 1338), (1200, 1375)])  # lines 0-3
sketch37.addConstraint([
    Sketcher.Constraint("Vertical", 0),
    Sketcher.Constraint("Horizontal", 1),
    Sketcher.Constraint("Vertical", 2),
    Sketcher.Constraint("Horizontal", 3),
    Sketcher.Constraint("DistanceX", 1, 1, 1, 2, 75.0),
    Sketcher.Constraint("DistanceY", 0, 2, 0, 1, 37.5),
    Sketcher.Constraint("DistanceX", -1, 1, 0, 2, 1125.0),
    Sketcher.Constraint("DistanceY", -1, 1, 2, 2, 1375.0),
])
pad37 = doc.addObject("PartDesign::Pad", "Pad036")
body37.addObject(pad37)
pad37.Profile = sketch37
pad37.Length = 2200
body38 = doc.addObject("PartDesign::Body", "Body037")
body38.AllowCompound = True

# Sketch on XZ plane
sketch38 = doc.addObject("Sketcher::SketchObject", "Sketch037")
body38.addObject(sketch38)
sketch38.AttachmentSupport = (doc.getObject("XZ_Plane037"), [""])
sketch38.MapMode = "FlatFace"
add_polygon(sketch38, [(-1200, 2051), (-1200, 1949), (-1174, 1949), (-1174, 2051)])  # lines 0-3
add_polygon(sketch38, [(1174, 2051), (1174, 1949), (1200, 1949), (1200, 2051)])  # lines 4-7
sketch38.addConstraint([
    Sketcher.Constraint("Vertical", 0),
    Sketcher.Constraint("Horizontal", 1),
    Sketcher.Constraint("Vertical", 2),
    Sketcher.Constraint("Horizontal", 3),
    Sketcher.Constraint("Vertical", 4),
    Sketcher.Constraint("Horizontal", 5),
    Sketcher.Constraint("Vertical", 6),
    Sketcher.Constraint("Horizontal", 7),
    Sketcher.Constraint("Symmetric", 1, 2, 4, 2, -2),
    Sketcher.Constraint("Symmetric", 3, 2, 6, 2, -2),
    Sketcher.Constraint("DistanceX", 1, 1, 1, 2, 26.0),
    Sketcher.Constraint("DistanceY", 0, 2, 0, 1, 102.0),
    Sketcher.Constraint("DistanceX", 0, 2, -1, 1, 1200.0),
    Sketcher.Constraint("DistanceY", -1, 1, 0, 2, 1949.0),
])
pad38 = doc.addObject("PartDesign::Pad", "Pad037")
body38.addObject(pad38)
pad38.Profile = sketch38
pad38.Type = "TwoLengths"
pad38.Length = 3700.001
pad38.Length2 = 10.001
pad38.Reversed = True
doc.recompute()

body39 = doc.addObject("PartDesign::Body", "Body038")
body39.BaseFeature = body38
boolean = doc.addObject("PartDesign::Boolean", "Boolean")
body18.addObject(boolean)
boolean.Type = "Cut"
boolean.addObjects([body39])
doc.recompute()

body40 = doc.addObject("PartDesign::Body", "Body039")
body40.BaseFeature = body38
boolean2 = doc.addObject("PartDesign::Boolean", "Boolean001")
body19.addObject(boolean2)
boolean2.Type = "Cut"
boolean2.addObjects([body40])
doc.recompute()

body41 = doc.addObject("PartDesign::Body", "Body040")
body41.BaseFeature = body38
boolean3 = doc.addObject("PartDesign::Boolean", "Boolean002")
body20.addObject(boolean3)
boolean3.Type = "Cut"
boolean3.addObjects([body41])
doc.recompute()

body42 = doc.addObject("PartDesign::Body", "Body041")
body42.BaseFeature = body38
boolean4 = doc.addObject("PartDesign::Boolean", "Boolean003")
body21.addObject(boolean4)
boolean4.Type = "Cut"
boolean4.addObjects([body42])
doc.recompute()

body43 = doc.addObject("PartDesign::Body", "Body042")
body43.BaseFeature = body38
boolean5 = doc.addObject("PartDesign::Boolean", "Boolean004")
body26.addObject(boolean5)
boolean5.Type = "Cut"
boolean5.addObjects([body43])
doc.recompute()

body44 = doc.addObject("PartDesign::Body", "Body043")
body44.BaseFeature = body38
boolean6 = doc.addObject("PartDesign::Boolean", "Boolean005")
body27.addObject(boolean6)
boolean6.Type = "Cut"
boolean6.addObjects([body44])
doc.recompute()

body45 = doc.addObject("PartDesign::Body", "Body044")
body45.BaseFeature = body38
boolean7 = doc.addObject("PartDesign::Boolean", "Boolean006")
body28.addObject(boolean7)
boolean7.Type = "Cut"
boolean7.addObjects([body45])
doc.recompute()

body46 = doc.addObject("PartDesign::Body", "Body045")
body46.BaseFeature = body38
boolean8 = doc.addObject("PartDesign::Boolean", "Boolean007")
body29.addObject(boolean8)
boolean8.Type = "Cut"
boolean8.addObjects([body46])
doc.recompute()

body47 = doc.addObject("PartDesign::Body", "Body046")
body47.BaseFeature = body38
boolean9 = doc.addObject("PartDesign::Boolean", "Boolean008")
body30.addObject(boolean9)
boolean9.Type = "Cut"
boolean9.addObjects([body47])
doc.recompute()

body48 = doc.addObject("PartDesign::Body", "Body047")
body48.BaseFeature = body38
boolean10 = doc.addObject("PartDesign::Boolean", "Boolean009")
body31.addObject(boolean10)
boolean10.Type = "Cut"
boolean10.addObjects([body48])
doc.recompute()

body49 = doc.addObject("PartDesign::Body", "Body048")
body49.BaseFeature = body38
boolean11 = doc.addObject("PartDesign::Boolean", "Boolean010")
body32.addObject(boolean11)
boolean11.Type = "Cut"
boolean11.addObjects([body49])
doc.recompute()

body50 = doc.addObject("PartDesign::Body", "Body049")
body50.BaseFeature = body38
boolean12 = doc.addObject("PartDesign::Boolean", "Boolean011")
body33.addObject(boolean12)
boolean12.Type = "Cut"
boolean12.addObjects([body50])
doc.recompute()

body51 = doc.addObject("PartDesign::Body", "Body050")
body51.BaseFeature = body38
boolean13 = doc.addObject("PartDesign::Boolean", "Boolean012")
body34.addObject(boolean13)
boolean13.Type = "Cut"
boolean13.addObjects([body51])
doc.recompute()

body52 = doc.addObject("PartDesign::Body", "Body051")
body52.BaseFeature = body38
boolean14 = doc.addObject("PartDesign::Boolean", "Boolean013")
body35.addObject(boolean14)
boolean14.Type = "Cut"
boolean14.addObjects([body52])
doc.recompute()

body53 = doc.addObject("PartDesign::Body", "Body052")
body53.BaseFeature = body38
boolean15 = doc.addObject("PartDesign::Boolean", "Boolean014")
body36.addObject(boolean15)
boolean15.Type = "Cut"
boolean15.addObjects([body53])
doc.recompute()

boolean16 = doc.addObject("PartDesign::Boolean", "Boolean015")
body37.addObject(boolean16)
boolean16.Type = "Cut"
boolean16.addObjects([body38])
body54 = doc.addObject("PartDesign::Body", "Body053")

# Sketch on XZ plane
sketch39 = doc.addObject("Sketcher::SketchObject", "Sketch038")
body54.addObject(sketch39)
sketch39.AttachmentSupport = (doc.getObject("XZ_Plane053"), [""])
sketch39.MapMode = "FlatFace"
add_polygon(sketch39, [(-1200, 2050), (-1200, 1950), (-1175, 1950), (-1175, 2050)])  # lines 0-3
sketch39.addConstraint([
    Sketcher.Constraint("Vertical", 0),
    Sketcher.Constraint("Horizontal", 1),
    Sketcher.Constraint("Vertical", 2),
    Sketcher.Constraint("Horizontal", 3),
    Sketcher.Constraint("DistanceX", 1, 1, 1, 2, 25.0),
    Sketcher.Constraint("DistanceY", 0, 2, 0, 1, 100.0),
    Sketcher.Constraint("DistanceX", 0, 2, -1, 1, 1200.0),
    Sketcher.Constraint("DistanceY", -1, 1, 0, 2, 1950.0),
])
pad39 = doc.addObject("PartDesign::Pad", "Pad038")
body54.addObject(pad39)
pad39.Profile = sketch39
pad39.Type = "TwoLengths"
pad39.Length = 4100
pad39.Length2 = 400
pad39.Reversed = True
body55 = doc.addObject("PartDesign::Body", "Body054")

# Sketch on XZ plane
sketch40 = doc.addObject("Sketcher::SketchObject", "Sketch039")
body55.addObject(sketch40)
sketch40.AttachmentSupport = (doc.getObject("XZ_Plane054"), [""])
sketch40.MapMode = "FlatFace"
add_polygon(sketch40, [(1175, 2050), (1175, 1950), (1200, 1950), (1200, 2050)])  # lines 0-3
sketch40.addConstraint([
    Sketcher.Constraint("Vertical", 0),
    Sketcher.Constraint("Horizontal", 1),
    Sketcher.Constraint("Vertical", 2),
    Sketcher.Constraint("Horizontal", 3),
    Sketcher.Constraint("DistanceX", 1, 1, 1, 2, 25.0),
    Sketcher.Constraint("DistanceY", 0, 2, 0, 1, 100.0),
    Sketcher.Constraint("DistanceX", -1, 1, 0, 2, 1175.0),
    Sketcher.Constraint("DistanceY", -1, 1, 0, 2, 1950.0),
])
pad40 = doc.addObject("PartDesign::Pad", "Pad039")
body55.addObject(pad40)
pad40.Profile = sketch40
pad40.Type = "TwoLengths"
pad40.Length = 4100
pad40.Length2 = 400
pad40.Reversed = True
body56 = doc.addObject("PartDesign::Body", "Body055")

# Sketch on XZ plane
sketch41 = doc.addObject("Sketcher::SketchObject", "Sketch040")
body56.addObject(sketch41)
sketch41.AttachmentSupport = (doc.getObject("XZ_Plane055"), [""])
sketch41.MapMode = "FlatFace"
add_polygon(sketch41, [(-50, 2350), (-50, 2250), (0, 2250), (0, 2350)])  # lines 0-3
sketch41.addConstraint([
    Sketcher.Constraint("Vertical", 0),
    Sketcher.Constraint("Horizontal", 1),
    Sketcher.Constraint("Vertical", 2),
    Sketcher.Constraint("Horizontal", 3),
    Sketcher.Constraint("PointOnObject", 1, 2, -2),
    Sketcher.Constraint("DistanceX", 1, 1, 1, 2, 50.0),
    Sketcher.Constraint("DistanceY", 0, 2, 0, 1, 100.0),
    Sketcher.Constraint("DistanceY", -1, 1, 0, 2, 2250.0),
])
pad41 = doc.addObject("PartDesign::Pad", "Pad040")
body56.addObject(pad41)
pad41.Profile = sketch41
pad41.Type = "TwoLengths"
pad41.Length = 4100
pad41.Length2 = 400
pad41.Reversed = True

doc.recompute()
